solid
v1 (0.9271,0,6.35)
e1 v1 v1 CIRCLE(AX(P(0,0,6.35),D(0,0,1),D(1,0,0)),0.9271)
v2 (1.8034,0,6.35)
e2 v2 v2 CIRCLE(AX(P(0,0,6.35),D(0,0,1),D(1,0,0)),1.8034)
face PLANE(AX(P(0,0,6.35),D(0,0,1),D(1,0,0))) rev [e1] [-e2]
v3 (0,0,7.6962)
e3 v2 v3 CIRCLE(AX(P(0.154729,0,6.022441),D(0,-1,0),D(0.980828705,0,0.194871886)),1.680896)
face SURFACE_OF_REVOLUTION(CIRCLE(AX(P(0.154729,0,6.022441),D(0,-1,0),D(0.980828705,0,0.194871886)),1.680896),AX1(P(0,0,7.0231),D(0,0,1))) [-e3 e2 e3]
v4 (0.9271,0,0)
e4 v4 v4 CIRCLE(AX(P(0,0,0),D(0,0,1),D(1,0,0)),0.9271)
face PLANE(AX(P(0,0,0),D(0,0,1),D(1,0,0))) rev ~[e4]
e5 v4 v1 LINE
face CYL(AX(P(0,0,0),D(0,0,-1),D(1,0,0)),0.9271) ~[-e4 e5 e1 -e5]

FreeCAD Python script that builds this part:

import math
import FreeCAD as App
import Part
import Sketcher
from FreeCAD import Vector
Q = App.Units.Quantity

doc = App.newDocument("Part")
body = doc.addObject("PartDesign::Body", "Body")

# Sketch on XY plane
sketch1 = body.newObject("Sketcher::SketchObject", "Sketch")
sketch1.AttachmentSupport = (doc.getObject("XY_Plane"), [""])
sketch1.MapMode = "FlatFace"
sketch1.addGeometry(Part.Circle(Vector(0, 0, 0), Vector(0, 0, 1), 0.9), False)
sketch1.addConstraint([
    Sketcher.Constraint("Coincident", 0, 3, -1, 1),
    Sketcher.Constraint("Diameter", 0, Q("0.073 in")),
])
pad1 = body.newObject("PartDesign::Pad", "Pad")
pad1.Profile = sketch1
pad1.Length = Q("0.25 in")

# Sketch on XZ plane
sketch2 = body.newObject("Sketcher::SketchObject", "Sketch001")
sketch2.AttachmentSupport = (doc.getObject("XZ_Plane"), [""])
sketch2.MapMode = "FlatFace"
sketch2.addGeometry([
    Part.LineSegment(Vector(0, 7.7, 0), Vector(0, 6.3, 0)),
    Part.LineSegment(Vector(0, 6.3, 0), Vector(1.8, 6.3, 0)),
    Part.ArcOfCircle(Part.Circle(Vector(0.2, 6, 0), Vector(0, 0, 1), 1.7), math.radians(11), math.radians(95)),
], False)
sketch2.addConstraint([
    Sketcher.Constraint("Coincident", 0, 2, 1, 1),
    Sketcher.Constraint("Coincident", 1, 2, 2, 1),
    Sketcher.Constraint("Coincident", 2, 2, 0, 1),
    Sketcher.Constraint("Vertical", 0),
    Sketcher.Constraint("Horizontal", 1),
    Sketcher.Constraint("PointOnObject", 0, 2, -2),
    Sketcher.Constraint("DistanceX", 1, 1, 1, 2, Q("0.071 in")),
    Sketcher.Constraint("DistanceY", 0, 2, 0, 1, Q("0.053 in")),
    Sketcher.Constraint("DistanceY", -1, 1, 0, 2, Q("0.25 in")),
    Sketcher.Constraint("Radius", 2, Q("1.680896 mm")),
])
revolution = body.newObject("PartDesign::Revolution", "Revolution")
revolution.Profile = sketch2
revolution.ReferenceAxis = (sketch2, ["V_Axis"])
revolution.Angle = 360

doc.recompute()
